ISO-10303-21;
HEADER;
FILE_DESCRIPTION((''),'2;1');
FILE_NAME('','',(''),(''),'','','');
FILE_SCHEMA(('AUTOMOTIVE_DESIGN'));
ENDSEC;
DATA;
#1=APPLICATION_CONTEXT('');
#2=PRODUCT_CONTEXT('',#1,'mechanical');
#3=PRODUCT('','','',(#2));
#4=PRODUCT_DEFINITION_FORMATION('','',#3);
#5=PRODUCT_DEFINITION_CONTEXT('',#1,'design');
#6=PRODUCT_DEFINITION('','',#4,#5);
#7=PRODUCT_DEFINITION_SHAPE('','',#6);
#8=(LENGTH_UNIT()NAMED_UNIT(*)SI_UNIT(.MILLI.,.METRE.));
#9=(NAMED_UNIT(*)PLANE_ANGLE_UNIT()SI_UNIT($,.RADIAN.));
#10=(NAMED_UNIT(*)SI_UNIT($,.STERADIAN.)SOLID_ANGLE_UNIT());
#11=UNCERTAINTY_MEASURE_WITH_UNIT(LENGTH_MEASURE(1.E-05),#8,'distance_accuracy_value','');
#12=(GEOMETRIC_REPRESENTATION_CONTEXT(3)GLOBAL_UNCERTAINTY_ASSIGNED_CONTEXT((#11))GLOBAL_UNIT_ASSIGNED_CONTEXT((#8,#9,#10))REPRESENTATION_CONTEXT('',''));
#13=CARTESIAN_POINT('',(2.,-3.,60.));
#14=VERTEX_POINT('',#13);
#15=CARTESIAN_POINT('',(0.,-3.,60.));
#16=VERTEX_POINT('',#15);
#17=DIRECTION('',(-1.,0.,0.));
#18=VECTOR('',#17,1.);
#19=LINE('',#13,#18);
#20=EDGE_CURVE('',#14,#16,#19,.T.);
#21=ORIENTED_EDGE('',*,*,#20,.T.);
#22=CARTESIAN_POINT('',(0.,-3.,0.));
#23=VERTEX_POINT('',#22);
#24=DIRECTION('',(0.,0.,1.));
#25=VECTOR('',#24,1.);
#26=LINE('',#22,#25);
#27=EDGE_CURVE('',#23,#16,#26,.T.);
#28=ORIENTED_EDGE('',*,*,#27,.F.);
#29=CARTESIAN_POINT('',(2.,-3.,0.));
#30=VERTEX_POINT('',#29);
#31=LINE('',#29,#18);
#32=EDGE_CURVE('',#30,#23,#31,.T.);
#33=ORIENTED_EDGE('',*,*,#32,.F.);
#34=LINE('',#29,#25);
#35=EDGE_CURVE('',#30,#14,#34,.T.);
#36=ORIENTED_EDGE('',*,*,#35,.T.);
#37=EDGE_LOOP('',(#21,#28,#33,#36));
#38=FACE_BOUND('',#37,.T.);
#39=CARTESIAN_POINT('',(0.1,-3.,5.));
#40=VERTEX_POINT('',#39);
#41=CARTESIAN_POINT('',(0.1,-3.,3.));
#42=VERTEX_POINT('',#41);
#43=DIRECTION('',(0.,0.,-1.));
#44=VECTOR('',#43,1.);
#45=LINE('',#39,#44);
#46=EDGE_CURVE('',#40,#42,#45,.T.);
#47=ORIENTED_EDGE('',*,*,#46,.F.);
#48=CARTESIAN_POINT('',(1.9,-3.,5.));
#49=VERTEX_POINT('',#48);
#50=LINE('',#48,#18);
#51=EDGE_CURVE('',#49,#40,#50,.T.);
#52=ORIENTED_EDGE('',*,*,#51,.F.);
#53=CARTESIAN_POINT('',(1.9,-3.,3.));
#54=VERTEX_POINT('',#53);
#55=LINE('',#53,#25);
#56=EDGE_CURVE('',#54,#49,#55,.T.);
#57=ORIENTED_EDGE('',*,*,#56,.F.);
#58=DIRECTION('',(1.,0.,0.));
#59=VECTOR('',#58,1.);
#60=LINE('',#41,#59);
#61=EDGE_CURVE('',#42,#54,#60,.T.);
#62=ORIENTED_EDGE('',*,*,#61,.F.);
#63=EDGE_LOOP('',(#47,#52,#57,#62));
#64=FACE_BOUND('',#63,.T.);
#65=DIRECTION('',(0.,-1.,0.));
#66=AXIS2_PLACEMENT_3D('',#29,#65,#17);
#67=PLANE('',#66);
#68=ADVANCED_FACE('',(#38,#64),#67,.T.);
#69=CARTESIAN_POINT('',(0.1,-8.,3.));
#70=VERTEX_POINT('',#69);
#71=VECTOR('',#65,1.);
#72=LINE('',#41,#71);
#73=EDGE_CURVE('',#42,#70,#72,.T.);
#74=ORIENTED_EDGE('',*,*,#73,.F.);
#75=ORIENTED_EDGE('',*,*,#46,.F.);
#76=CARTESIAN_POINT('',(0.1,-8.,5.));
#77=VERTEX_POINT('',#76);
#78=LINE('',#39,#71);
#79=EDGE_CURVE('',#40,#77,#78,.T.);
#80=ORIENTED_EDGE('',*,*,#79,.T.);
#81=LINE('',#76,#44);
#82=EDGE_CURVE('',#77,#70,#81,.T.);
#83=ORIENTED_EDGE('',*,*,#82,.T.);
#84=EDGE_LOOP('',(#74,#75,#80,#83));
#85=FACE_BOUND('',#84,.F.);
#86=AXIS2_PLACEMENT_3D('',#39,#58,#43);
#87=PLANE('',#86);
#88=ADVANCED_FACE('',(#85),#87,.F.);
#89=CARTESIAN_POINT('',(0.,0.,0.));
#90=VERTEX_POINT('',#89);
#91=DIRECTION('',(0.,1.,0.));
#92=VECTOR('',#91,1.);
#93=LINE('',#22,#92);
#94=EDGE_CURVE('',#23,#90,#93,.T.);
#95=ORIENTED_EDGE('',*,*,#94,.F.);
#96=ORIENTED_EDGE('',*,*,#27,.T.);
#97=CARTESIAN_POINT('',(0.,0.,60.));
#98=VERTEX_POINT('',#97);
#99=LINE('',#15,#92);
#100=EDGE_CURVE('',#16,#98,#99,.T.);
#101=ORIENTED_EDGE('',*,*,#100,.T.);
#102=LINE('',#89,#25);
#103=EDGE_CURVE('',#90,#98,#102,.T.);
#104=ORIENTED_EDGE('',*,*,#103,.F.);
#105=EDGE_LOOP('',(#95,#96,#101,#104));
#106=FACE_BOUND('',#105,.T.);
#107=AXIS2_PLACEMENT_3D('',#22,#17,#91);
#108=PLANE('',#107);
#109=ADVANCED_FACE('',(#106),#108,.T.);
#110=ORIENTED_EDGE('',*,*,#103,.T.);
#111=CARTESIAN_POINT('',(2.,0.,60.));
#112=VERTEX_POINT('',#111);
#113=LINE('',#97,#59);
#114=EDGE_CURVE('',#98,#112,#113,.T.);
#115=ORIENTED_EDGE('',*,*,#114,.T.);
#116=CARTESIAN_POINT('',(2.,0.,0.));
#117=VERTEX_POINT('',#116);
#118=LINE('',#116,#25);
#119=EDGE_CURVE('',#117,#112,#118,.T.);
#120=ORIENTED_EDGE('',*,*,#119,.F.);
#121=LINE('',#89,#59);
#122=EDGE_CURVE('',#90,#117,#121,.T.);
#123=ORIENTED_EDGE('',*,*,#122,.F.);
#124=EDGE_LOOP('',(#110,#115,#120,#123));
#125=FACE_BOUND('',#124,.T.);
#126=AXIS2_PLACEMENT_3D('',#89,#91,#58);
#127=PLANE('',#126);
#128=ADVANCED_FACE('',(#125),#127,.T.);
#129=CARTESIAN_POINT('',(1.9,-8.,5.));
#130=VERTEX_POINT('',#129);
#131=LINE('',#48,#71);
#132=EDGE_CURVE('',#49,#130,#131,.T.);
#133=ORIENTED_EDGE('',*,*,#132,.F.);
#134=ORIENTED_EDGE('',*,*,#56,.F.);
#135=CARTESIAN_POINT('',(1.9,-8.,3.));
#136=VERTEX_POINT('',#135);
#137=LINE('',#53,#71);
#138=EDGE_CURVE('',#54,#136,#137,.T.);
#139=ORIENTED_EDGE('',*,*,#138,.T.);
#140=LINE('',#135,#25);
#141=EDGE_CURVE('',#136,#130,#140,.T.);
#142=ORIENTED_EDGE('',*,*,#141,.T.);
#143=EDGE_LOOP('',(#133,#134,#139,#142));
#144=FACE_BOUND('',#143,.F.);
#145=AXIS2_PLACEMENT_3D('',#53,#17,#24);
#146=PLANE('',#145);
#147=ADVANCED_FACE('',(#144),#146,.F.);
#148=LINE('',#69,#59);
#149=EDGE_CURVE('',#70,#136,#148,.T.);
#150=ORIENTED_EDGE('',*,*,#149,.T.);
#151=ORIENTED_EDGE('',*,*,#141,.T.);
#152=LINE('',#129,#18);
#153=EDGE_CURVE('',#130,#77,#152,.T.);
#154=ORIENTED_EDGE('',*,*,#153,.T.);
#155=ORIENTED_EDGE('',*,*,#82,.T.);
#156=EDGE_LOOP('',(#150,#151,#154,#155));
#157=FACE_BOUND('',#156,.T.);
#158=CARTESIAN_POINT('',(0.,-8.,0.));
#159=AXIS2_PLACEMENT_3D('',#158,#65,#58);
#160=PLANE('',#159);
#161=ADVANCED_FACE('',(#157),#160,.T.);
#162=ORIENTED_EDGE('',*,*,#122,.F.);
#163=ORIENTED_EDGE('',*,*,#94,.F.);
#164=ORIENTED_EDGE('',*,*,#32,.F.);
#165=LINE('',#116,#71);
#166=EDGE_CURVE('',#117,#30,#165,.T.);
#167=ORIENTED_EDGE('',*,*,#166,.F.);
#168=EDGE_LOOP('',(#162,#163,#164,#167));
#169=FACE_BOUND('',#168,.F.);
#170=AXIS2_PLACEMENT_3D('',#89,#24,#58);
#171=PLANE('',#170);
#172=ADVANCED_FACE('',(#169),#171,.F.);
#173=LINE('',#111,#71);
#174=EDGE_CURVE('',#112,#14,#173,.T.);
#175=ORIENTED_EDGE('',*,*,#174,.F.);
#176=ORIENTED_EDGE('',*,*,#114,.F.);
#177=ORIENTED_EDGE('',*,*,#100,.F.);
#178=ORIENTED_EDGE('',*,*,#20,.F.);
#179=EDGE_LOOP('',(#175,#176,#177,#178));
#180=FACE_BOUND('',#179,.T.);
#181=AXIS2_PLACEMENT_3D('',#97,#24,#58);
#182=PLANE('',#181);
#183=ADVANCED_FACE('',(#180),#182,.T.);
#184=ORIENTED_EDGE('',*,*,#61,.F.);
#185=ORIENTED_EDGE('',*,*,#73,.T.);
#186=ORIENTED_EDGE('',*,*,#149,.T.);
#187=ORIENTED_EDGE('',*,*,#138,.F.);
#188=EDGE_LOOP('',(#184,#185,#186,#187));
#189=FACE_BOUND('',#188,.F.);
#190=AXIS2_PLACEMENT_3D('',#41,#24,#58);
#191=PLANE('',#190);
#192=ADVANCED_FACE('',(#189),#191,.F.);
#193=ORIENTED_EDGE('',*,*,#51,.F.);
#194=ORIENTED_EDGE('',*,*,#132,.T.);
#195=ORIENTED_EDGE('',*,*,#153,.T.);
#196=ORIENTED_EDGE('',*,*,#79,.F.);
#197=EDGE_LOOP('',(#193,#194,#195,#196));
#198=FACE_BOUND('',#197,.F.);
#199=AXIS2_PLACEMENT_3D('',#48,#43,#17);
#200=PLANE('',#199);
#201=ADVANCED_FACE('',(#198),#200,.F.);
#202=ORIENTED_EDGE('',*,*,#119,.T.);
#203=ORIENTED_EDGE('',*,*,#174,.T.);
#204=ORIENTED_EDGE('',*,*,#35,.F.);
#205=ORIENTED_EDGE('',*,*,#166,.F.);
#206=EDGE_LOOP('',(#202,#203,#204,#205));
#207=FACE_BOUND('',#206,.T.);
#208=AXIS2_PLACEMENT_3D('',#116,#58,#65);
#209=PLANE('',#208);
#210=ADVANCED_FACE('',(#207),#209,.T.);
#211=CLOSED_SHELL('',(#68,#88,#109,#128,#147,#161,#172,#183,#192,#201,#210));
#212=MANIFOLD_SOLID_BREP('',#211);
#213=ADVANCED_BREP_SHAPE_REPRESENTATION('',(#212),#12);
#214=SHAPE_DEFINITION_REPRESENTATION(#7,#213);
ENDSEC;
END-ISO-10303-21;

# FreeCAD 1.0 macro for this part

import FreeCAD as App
import Part
import Sketcher
from FreeCAD import Vector
Q = App.Units.Quantity


def add_polygon(sketch, points):
    """Adds a closed chain of lines whose ends are joined by coincident constraints."""
    first, n = sketch.GeometryCount, len(points)
    for a, b in zip(points, points[1:] + points[:1]):
        sketch.addGeometry(Part.LineSegment(App.Vector(*a, 0), App.Vector(*b, 0)), False)
    for i in range(n):
        sketch.addConstraint(Sketcher.Constraint("Coincident", first + i, 2, first + (i + 1) % n, 1))

doc = App.newDocument("Part")
params = doc.addObject("Spreadsheet::Sheet", "Params")
for row, (alias, value) in enumerate([
    ("sketch1_width", "2 mm"),
    ("sketch1_height", "3 mm"),
    ("pad1_length", "60 mm"),
    ("sketch2_height", "2 mm"),
    ("sketch2_width", "1.8 mm"),
    ("pad2_length", "5 mm"),
], start=1):
    params.set(f"A{row}", alias)
    params.set(f"B{row}", "=" + value)
    params.setAlias(f"B{row}", alias)

body = doc.addObject("PartDesign::Body", "Body")

sketch1 = body.newObject("Sketcher::SketchObject", "Sketch")
sketch1.AttachmentSupport = (doc.getObject("XY_Plane"), [""])
sketch1.MapMode = "FlatFace"
add_polygon(sketch1, [(2, 0), (0, 0), (0, -3), (2, -3)])
sketch1.addConstraint(Sketcher.Constraint("Horizontal", 0))
sketch1.addConstraint(Sketcher.Constraint("Vertical", 1))
sketch1.addConstraint(Sketcher.Constraint("Horizontal", 2))
sketch1.addConstraint(Sketcher.Constraint("Vertical", 3))
sketch1.addConstraint(Sketcher.Constraint("Coincident", 0, 2, -1, 1))
sketch1.addConstraint(Sketcher.Constraint("DistanceX", 0, 2, 0, 1, Q("2 mm")))
sketch1.addConstraint(Sketcher.Constraint("DistanceY", 1, 2, 1, 1, Q("3 mm")))
sketch1.setExpression("Constraints[9]", "Params.sketch1_width")
sketch1.setExpression("Constraints[10]", "Params.sketch1_height")
pad1 = body.newObject("PartDesign::Pad", "Pad")
pad1.Profile = sketch1
pad1.setExpression("Length", "Params.pad1_length")

sketch2 = body.newObject("Sketcher::SketchObject", "Sketch001")
sketch2.AttachmentSupport = (doc.getObject("XZ_Plane"), [""])
sketch2.MapMode = "FlatFace"
sketch2.AttachmentOffset = App.Placement(Vector(0, 0, 3), App.Rotation())
add_polygon(sketch2, [(0.1, 5), (0.1, 3), (1.9, 3), (1.9, 5)])
sketch2.addConstraint(Sketcher.Constraint("Vertical", 0))
sketch2.addConstraint(Sketcher.Constraint("Horizontal", 1))
sketch2.addConstraint(Sketcher.Constraint("Vertical", 2))
sketch2.addConstraint(Sketcher.Constraint("Horizontal", 3))
sketch2.addConstraint(Sketcher.Constraint("DistanceY", 0, 2, 0, 1, Q("2 mm")))
sketch2.addConstraint(Sketcher.Constraint("DistanceX", 1, 1, 1, 2, Q("1.8 mm")))
sketch2.addConstraint(Sketcher.Constraint("DistanceY", -1, 1, 0, 2, Q("3 mm")))
sketch2.addConstraint(Sketcher.Constraint("DistanceX", -1, 1, 0, 2, Q("0.1 mm")))
sketch2.setExpression("Constraints[8]", "Params.sketch2_height")
sketch2.setExpression("Constraints[9]", "Params.sketch2_width")
pad2 = body.newObject("PartDesign::Pad", "Pad001")
pad2.Profile = sketch2
pad2.setExpression("Length", "Params.pad2_length")

doc.recompute()
